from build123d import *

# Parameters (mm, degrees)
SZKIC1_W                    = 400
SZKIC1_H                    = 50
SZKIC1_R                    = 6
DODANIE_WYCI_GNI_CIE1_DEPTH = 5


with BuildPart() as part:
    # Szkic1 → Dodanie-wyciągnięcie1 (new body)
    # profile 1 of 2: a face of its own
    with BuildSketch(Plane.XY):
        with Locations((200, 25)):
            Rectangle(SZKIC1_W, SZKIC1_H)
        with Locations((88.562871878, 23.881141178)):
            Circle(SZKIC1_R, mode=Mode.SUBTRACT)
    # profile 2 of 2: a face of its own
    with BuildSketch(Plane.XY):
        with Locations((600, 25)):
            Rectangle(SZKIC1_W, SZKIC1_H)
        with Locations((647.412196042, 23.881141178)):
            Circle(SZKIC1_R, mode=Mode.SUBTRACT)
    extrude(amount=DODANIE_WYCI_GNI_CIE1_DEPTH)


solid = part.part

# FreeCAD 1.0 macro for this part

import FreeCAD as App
import Part
import Sketcher

V = App.Vector
Q = App.Units.Quantity


def add_polygon(sketch, points):
    """Adds a closed chain of lines whose ends are joined by coincident constraints."""
    first, n = sketch.GeometryCount, len(points)
    for a, b in zip(points, points[1:] + points[:1]):
        sketch.addGeometry(Part.LineSegment(App.Vector(*a, 0), App.Vector(*b, 0)), False)
    for i in range(n):
        sketch.addConstraint(Sketcher.Constraint("Coincident", first + i, 2, first + (i + 1) % n, 1))

doc = App.newDocument("Part")
body = doc.addObject("PartDesign::Body", "Body")

# Sketch on XY plane
sketch1 = body.newObject("Sketcher::SketchObject", "Sketch")
sketch1.AttachmentSupport = (doc.getObject("XY_Plane"), [""])
sketch1.MapMode = "FlatFace"
add_polygon(sketch1, [(0, 50), (0, 0), (800, 0), (800, 50)])  # lines 0-3
sketch1.addGeometry(Part.Circle(V(89, 24, 0), V(0, 0, 1), 6), False)  # 4
sketch1.addGeometry(Part.Circle(V(647, 24, 0), V(0, 0, 1), 6), False)  # 5
sketch1.addConstraint([
    Sketcher.Constraint("Vertical", 0),
    Sketcher.Constraint("Horizontal", 1),
    Sketcher.Constraint("Vertical", 2),
    Sketcher.Constraint("Horizontal", 3),
    Sketcher.Constraint("Coincident", 0, 2, -1, 1),
    Sketcher.Constraint("Equal", 4, 5),
    Sketcher.Constraint("Horizontal", 4, 3, 5, 3),
    Sketcher.Constraint("Diameter", 4, Q("12 mm")),
    Sketcher.Constraint("DistanceX", 1, 1, 1, 2, Q("800 mm")),
    Sketcher.Constraint("DistanceY", 0, 2, 0, 1, Q("50 mm")),
    Sketcher.Constraint("DistanceX", -1, 1, 4, 3, Q("88.562872 mm")),
    Sketcher.Constraint("DistanceY", -1, 1, 4, 3, Q("23.881141 mm")),
    Sketcher.Constraint("DistanceX", -1, 1, 5, 3, Q("647.412196 mm")),
])
pad1 = body.newObject("PartDesign::Pad", "Pad")
pad1.Profile = sketch1
pad1.Length = 5

doc.recompute()
